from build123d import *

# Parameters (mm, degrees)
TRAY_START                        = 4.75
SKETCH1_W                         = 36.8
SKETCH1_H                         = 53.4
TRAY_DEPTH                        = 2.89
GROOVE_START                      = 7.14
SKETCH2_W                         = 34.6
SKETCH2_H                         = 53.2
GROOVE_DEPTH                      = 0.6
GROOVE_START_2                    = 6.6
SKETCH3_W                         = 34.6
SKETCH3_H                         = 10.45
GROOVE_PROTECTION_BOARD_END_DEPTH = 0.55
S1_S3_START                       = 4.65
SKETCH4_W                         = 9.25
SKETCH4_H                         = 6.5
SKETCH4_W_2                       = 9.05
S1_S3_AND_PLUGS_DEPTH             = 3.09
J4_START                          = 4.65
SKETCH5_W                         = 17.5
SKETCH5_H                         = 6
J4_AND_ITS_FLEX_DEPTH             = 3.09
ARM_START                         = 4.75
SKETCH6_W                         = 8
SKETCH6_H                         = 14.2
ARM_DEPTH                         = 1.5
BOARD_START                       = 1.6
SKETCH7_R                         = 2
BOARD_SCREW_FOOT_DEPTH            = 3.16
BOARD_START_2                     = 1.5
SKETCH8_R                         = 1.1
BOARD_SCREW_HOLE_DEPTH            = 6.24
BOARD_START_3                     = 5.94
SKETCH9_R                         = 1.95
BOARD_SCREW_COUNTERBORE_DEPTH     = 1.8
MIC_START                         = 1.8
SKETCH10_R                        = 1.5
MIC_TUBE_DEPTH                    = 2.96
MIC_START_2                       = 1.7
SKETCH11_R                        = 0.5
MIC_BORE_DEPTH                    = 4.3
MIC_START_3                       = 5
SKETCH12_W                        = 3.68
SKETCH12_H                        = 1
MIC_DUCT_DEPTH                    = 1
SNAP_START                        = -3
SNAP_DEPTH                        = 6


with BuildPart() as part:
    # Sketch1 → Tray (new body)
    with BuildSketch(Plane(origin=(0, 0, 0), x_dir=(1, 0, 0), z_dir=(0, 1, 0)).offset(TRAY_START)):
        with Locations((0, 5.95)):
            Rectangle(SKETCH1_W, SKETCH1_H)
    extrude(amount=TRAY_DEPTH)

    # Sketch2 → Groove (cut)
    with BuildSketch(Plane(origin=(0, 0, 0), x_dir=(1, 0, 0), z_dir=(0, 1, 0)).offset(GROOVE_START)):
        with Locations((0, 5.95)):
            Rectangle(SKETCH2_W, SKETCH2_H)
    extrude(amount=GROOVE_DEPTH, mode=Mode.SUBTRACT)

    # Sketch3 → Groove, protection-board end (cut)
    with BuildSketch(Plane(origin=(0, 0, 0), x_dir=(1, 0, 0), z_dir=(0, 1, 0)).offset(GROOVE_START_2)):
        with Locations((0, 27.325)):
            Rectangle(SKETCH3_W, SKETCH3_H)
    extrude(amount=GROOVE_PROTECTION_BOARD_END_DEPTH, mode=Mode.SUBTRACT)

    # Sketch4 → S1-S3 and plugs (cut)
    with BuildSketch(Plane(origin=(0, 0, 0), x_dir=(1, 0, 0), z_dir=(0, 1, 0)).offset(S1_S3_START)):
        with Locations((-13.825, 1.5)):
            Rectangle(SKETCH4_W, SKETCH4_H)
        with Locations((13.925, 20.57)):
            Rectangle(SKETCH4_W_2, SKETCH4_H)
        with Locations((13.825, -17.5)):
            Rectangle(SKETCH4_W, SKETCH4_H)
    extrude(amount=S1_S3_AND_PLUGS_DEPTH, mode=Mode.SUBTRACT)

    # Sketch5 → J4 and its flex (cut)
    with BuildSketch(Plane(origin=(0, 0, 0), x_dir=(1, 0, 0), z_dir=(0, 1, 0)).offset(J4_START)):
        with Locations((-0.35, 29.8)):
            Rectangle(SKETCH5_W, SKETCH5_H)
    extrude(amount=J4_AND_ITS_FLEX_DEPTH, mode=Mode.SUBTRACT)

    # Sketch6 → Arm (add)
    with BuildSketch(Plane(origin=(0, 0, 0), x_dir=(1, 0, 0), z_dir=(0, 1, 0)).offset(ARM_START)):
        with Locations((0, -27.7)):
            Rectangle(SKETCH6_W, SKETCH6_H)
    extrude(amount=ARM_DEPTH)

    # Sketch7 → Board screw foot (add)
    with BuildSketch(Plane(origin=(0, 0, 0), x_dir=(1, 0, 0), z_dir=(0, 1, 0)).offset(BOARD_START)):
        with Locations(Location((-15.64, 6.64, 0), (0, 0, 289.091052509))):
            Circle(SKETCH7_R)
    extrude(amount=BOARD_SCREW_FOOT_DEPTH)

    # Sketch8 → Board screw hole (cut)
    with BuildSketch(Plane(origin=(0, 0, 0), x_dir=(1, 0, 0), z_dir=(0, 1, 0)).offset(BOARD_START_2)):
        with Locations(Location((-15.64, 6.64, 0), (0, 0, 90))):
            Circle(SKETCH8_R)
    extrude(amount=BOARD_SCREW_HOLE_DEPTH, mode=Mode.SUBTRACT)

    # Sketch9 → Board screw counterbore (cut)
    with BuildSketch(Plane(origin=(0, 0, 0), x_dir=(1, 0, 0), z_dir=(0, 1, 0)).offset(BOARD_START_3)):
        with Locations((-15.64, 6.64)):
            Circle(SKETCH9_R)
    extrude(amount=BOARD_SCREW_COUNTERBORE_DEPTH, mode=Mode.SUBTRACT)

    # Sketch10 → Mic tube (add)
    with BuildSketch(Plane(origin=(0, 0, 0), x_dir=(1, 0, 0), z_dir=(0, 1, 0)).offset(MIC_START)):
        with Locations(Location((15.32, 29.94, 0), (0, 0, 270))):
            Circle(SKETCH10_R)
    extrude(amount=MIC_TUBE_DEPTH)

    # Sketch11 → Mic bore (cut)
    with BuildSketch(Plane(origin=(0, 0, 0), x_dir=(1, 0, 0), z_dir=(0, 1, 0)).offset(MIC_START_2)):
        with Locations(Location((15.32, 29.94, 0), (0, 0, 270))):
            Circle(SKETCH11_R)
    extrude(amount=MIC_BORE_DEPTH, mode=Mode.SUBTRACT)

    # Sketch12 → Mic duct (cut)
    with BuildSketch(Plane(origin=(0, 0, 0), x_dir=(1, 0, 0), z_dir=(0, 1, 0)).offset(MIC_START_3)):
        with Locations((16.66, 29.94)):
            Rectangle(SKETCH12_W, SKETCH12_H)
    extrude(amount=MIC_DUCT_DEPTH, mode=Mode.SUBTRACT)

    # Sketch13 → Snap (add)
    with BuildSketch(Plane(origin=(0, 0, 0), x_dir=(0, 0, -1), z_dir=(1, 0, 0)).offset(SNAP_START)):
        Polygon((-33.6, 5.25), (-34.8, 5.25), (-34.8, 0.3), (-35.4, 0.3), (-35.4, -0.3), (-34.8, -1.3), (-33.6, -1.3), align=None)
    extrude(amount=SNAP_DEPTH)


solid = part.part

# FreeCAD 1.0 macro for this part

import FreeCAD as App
import Part
import Sketcher

V = App.Vector


def add_polygon(sketch, points):
    """Adds a closed chain of lines whose ends are joined by coincident constraints."""
    first, n = sketch.GeometryCount, len(points)
    for a, b in zip(points, points[1:] + points[:1]):
        sketch.addGeometry(Part.LineSegment(App.Vector(*a, 0), App.Vector(*b, 0)), False)
    for i in range(n):
        sketch.addConstraint(Sketcher.Constraint("Coincident", first + i, 2, first + (i + 1) % n, 1))

doc = App.newDocument("Part")
params = doc.addObject("Spreadsheet::Sheet", "Params")
for row, (alias, value) in enumerate([
    ("sketch1_width", "36.8 mm"),
    ("sketch1_height", "53.4 mm"),
    ("pad1_length", "2.89 mm"),
    ("sketch2_width", "34.6 mm"),
    ("sketch2_height", "53.2 mm"),
    ("pocket1_length", "0.6 mm"),
    ("sketch3_width", "34.6 mm"),
    ("sketch3_height", "10.45 mm"),
    ("pocket2_length", "0.55 mm"),
    ("sketch4_height", "6.5 mm"),
    ("sketch4_width", "9.25 mm"),
    ("sketch4_width2", "9.05 mm"),
    ("pocket3_length", "3.09 mm"),
    ("sketch5_height", "6 mm"),
    ("sketch5_width", "17.5 mm"),
    ("pocket4_length", "3.09 mm"),
    ("sketch6_width", "8 mm"),
    ("sketch6_height", "14.2 mm"),
    ("pad2_length", "1.5 mm"),
    ("sketch7_diameter", "4 mm"),
    ("pad3_length", "3.16 mm"),
    ("sketch8_diameter", "2.2 mm"),
    ("pocket5_length", "6.24 mm"),
    ("sketch9_diameter", "3.9 mm"),
    ("pocket6_length", "1.8 mm"),
    ("sketch10_diameter", "3 mm"),
    ("pad4_length", "2.96 mm"),
    ("sketch11_diameter", "1 mm"),
    ("pocket7_length", "4.3 mm"),
    ("sketch12_height", "1 mm"),
    ("sketch12_width", "3.68 mm"),
    ("pocket8_length", "1 mm"),
    ("sketch13_width", "0.6 mm"),
    ("sketch13_height", "1.2 mm"),
    ("sketch13_width2", "4.95 mm"),
    ("pad5_length", "6 mm"),
], start=1):
    params.set(f"A{row}", alias)
    params.set(f"B{row}", "=" + value)
    params.setAlias(f"B{row}", alias)

body = doc.addObject("PartDesign::Body", "Body")

# Sketch on XZ plane
sketch1 = body.newObject("Sketcher::SketchObject", "Sketch")
sketch1.AttachmentSupport = (doc.getObject("XZ_Plane"), [""])
sketch1.MapMode = "FlatFace"
sketch1.AttachmentOffset = App.Placement(V(0, 0, -4.75), App.Rotation())
add_polygon(sketch1, [(-18.4, -32.65), (-18.4, 20.75), (18.4, 20.75), (18.4, -32.65)])  # lines 0-3
sketch1.addConstraint([
    Sketcher.Constraint("Vertical", 0),
    Sketcher.Constraint("Horizontal", 1),
    Sketcher.Constraint("Vertical", 2),
    Sketcher.Constraint("Horizontal", 3),
    Sketcher.Constraint("DistanceX", 1, 1, 1, 2, 36.8),
    Sketcher.Constraint("DistanceY", 0, 1, 0, 2, 53.4),
    Sketcher.Constraint("DistanceX", 0, 2, -1, 1, 18.4),
    Sketcher.Constraint("DistanceY", -1, 1, 0, 2, 20.75),
])
sketch1.setExpression("Constraints[8]", "Params.sketch1_width")
sketch1.setExpression("Constraints[9]", "Params.sketch1_height")
pad1 = body.newObject("PartDesign::Pad", "Pad")
pad1.Profile = sketch1
pad1.setExpression("Length", "Params.pad1_length")
pad1.Reversed = True

# Sketch on XZ plane
sketch2 = body.newObject("Sketcher::SketchObject", "Sketch001")
sketch2.AttachmentSupport = (doc.getObject("XZ_Plane"), [""])
sketch2.MapMode = "FlatFace"
sketch2.AttachmentOffset = App.Placement(V(0, 0, -7.14), App.Rotation())
add_polygon(sketch2, [(-17.3, -32.55), (-17.3, 20.65), (17.3, 20.65), (17.3, -32.55)])  # lines 0-3
sketch2.addConstraint([
    Sketcher.Constraint("Vertical", 0),
    Sketcher.Constraint("Horizontal", 1),
    Sketcher.Constraint("Vertical", 2),
    Sketcher.Constraint("Horizontal", 3),
    Sketcher.Constraint("DistanceX", 1, 1, 1, 2, 34.6),
    Sketcher.Constraint("DistanceY", 0, 1, 0, 2, 53.2),
    Sketcher.Constraint("DistanceX", 0, 2, -1, 1, 17.3),
    Sketcher.Constraint("DistanceY", -1, 1, 0, 2, 20.65),
])
sketch2.setExpression("Constraints[8]", "Params.sketch2_width")
sketch2.setExpression("Constraints[9]", "Params.sketch2_height")
pocket1 = body.newObject("PartDesign::Pocket", "Pocket")
pocket1.Profile = sketch2
pocket1.setExpression("Length", "Params.pocket1_length")

# Sketch on XZ plane
sketch3 = body.newObject("Sketcher::SketchObject", "Sketch002")
sketch3.AttachmentSupport = (doc.getObject("XZ_Plane"), [""])
sketch3.MapMode = "FlatFace"
sketch3.AttachmentOffset = App.Placement(V(0, 0, -6.6), App.Rotation())
add_polygon(sketch3, [(-17.3, -32.55), (-17.3, -22.1), (17.3, -22.1), (17.3, -32.55)])  # lines 0-3
sketch3.addConstraint([
    Sketcher.Constraint("Vertical", 0),
    Sketcher.Constraint("Horizontal", 1),
    Sketcher.Constraint("Vertical", 2),
    Sketcher.Constraint("Horizontal", 3),
    Sketcher.Constraint("DistanceX", 1, 1, 1, 2, 34.6),
    Sketcher.Constraint("DistanceY", 0, 1, 0, 2, 10.45),
    Sketcher.Constraint("DistanceX", 0, 2, -1, 1, 17.3),
    Sketcher.Constraint("DistanceY", 0, 2, -1, 1, 22.1),
])
sketch3.setExpression("Constraints[8]", "Params.sketch3_width")
sketch3.setExpression("Constraints[9]", "Params.sketch3_height")
pocket2 = body.newObject("PartDesign::Pocket", "Pocket001")
pocket2.Profile = sketch3
pocket2.setExpression("Length", "Params.pocket2_length")

# Sketch on XZ plane
sketch4 = body.newObject("Sketcher::SketchObject", "Sketch003")
sketch4.AttachmentSupport = (doc.getObject("XZ_Plane"), [""])
sketch4.MapMode = "FlatFace"
sketch4.AttachmentOffset = App.Placement(V(0, 0, -4.65), App.Rotation())
add_polygon(sketch4, [(-18.45, -4.75), (-18.45, 1.75), (-9.2, 1.75), (-9.2, -4.75)])  # lines 0-3
add_polygon(sketch4, [(9.4, -23.82), (9.4, -17.32), (18.45, -17.32), (18.45, -23.82)])  # lines 4-7
add_polygon(sketch4, [(9.2, 14.25), (9.2, 20.75), (18.45, 20.75), (18.45, 14.25)])  # lines 8-11
sketch4.addConstraint([
    Sketcher.Constraint("Vertical", 0),
    Sketcher.Constraint("Horizontal", 1),
    Sketcher.Constraint("Vertical", 2),
    Sketcher.Constraint("Horizontal", 3),
    Sketcher.Constraint("Vertical", 4),
    Sketcher.Constraint("Horizontal", 5),
    Sketcher.Constraint("Vertical", 6),
    Sketcher.Constraint("Horizontal", 7),
    Sketcher.Constraint("Vertical", 8),
    Sketcher.Constraint("Horizontal", 9),
    Sketcher.Constraint("Vertical", 10),
    Sketcher.Constraint("Horizontal", 11),
    Sketcher.Constraint("Vertical", 6, 2, 9, 2),
    Sketcher.Constraint("Equal", 3, 9),
    Sketcher.Constraint("Equal", 2, 4),
    Sketcher.Constraint("Equal", 6, 8),
    Sketcher.Constraint("DistanceY", 0, 1, 0, 2, 6.5),
    Sketcher.Constraint("DistanceY", 1, 2, 8, 2, 19.0),
    Sketcher.Constraint("DistanceX", 1, 1, 1, 2, 9.25),
    Sketcher.Constraint("DistanceX", 5, 1, 5, 2, 9.05),
    Sketcher.Constraint("DistanceX", 1, 2, -1, 1, 9.2),
    Sketcher.Constraint("DistanceX", -1, 1, 4, 2, 9.4),
    Sketcher.Constraint("DistanceY", -1, 1, 0, 2, 1.75),
    Sketcher.Constraint("DistanceY", 4, 2, -1, 1, 17.32),
])
sketch4.setExpression("Constraints[28]", "Params.sketch4_height")
sketch4.setExpression("Constraints[30]", "Params.sketch4_width")
sketch4.setExpression("Constraints[31]", "Params.sketch4_width2")
pocket3 = body.newObject("PartDesign::Pocket", "Pocket002")
pocket3.Profile = sketch4
pocket3.setExpression("Length", "Params.pocket3_length")

# Sketch on XZ plane
sketch5 = body.newObject("Sketcher::SketchObject", "Sketch004")
sketch5.AttachmentSupport = (doc.getObject("XZ_Plane"), [""])
sketch5.MapMode = "FlatFace"
sketch5.AttachmentOffset = App.Placement(V(0, 0, -4.65), App.Rotation())
add_polygon(sketch5, [(-9.1, -32.8), (-9.1, -26.8), (8.4, -26.8), (8.4, -32.8)])  # lines 0-3
sketch5.addConstraint([
    Sketcher.Constraint("Vertical", 0),
    Sketcher.Constraint("Horizontal", 1),
    Sketcher.Constraint("Vertical", 2),
    Sketcher.Constraint("Horizontal", 3),
    Sketcher.Constraint("DistanceY", 0, 1, 0, 2, 6.0),
    Sketcher.Constraint("DistanceX", 1, 1, 1, 2, 17.5),
    Sketcher.Constraint("DistanceX", 0, 2, -1, 1, 9.1),
    Sketcher.Constraint("DistanceY", 0, 2, -1, 1, 26.8),
])
sketch5.setExpression("Constraints[8]", "Params.sketch5_height")
sketch5.setExpression("Constraints[9]", "Params.sketch5_width")
pocket4 = body.newObject("PartDesign::Pocket", "Pocket003")
pocket4.Profile = sketch5
pocket4.setExpression("Length", "Params.pocket4_length")

# Sketch on XZ plane
sketch6 = body.newObject("Sketcher::SketchObject", "Sketch005")
sketch6.AttachmentSupport = (doc.getObject("XZ_Plane"), [""])
sketch6.MapMode = "FlatFace"
sketch6.AttachmentOffset = App.Placement(V(0, 0, -4.75), App.Rotation())
add_polygon(sketch6, [(-4, 20.6), (-4, 34.8), (4, 34.8), (4, 20.6)])  # lines 0-3
sketch6.addConstraint([
    Sketcher.Constraint("Vertical", 0),
    Sketcher.Constraint("Horizontal", 1),
    Sketcher.Constraint("Vertical", 2),
    Sketcher.Constraint("Horizontal", 3),
    Sketcher.Constraint("DistanceX", 1, 1, 1, 2, 8.0),
    Sketcher.Constraint("DistanceY", 0, 1, 0, 2, 14.2),
    Sketcher.Constraint("DistanceX", 0, 2, -1, 1, 4.0),
    Sketcher.Constraint("DistanceY", -1, 1, 0, 2, 34.8),
])
sketch6.setExpression("Constraints[8]", "Params.sketch6_width")
sketch6.setExpression("Constraints[9]", "Params.sketch6_height")
pad2 = body.newObject("PartDesign::Pad", "Pad001")
pad2.Profile = sketch6
pad2.setExpression("Length", "Params.pad2_length")
pad2.Reversed = True

# Sketch on XZ plane
sketch7 = body.newObject("Sketcher::SketchObject", "Sketch006")
sketch7.AttachmentSupport = (doc.getObject("XZ_Plane"), [""])
sketch7.MapMode = "FlatFace"
sketch7.AttachmentOffset = App.Placement(V(0, 0, -1.6), App.Rotation())
sketch7.addGeometry(Part.Circle(V(-15.64, -6.64, 0), V(0, 0, 1), 2), False)
sketch7.addConstraint([
    Sketcher.Constraint("Diameter", 0, 4.0),
    Sketcher.Constraint("DistanceX", 0, 3, -1, 1, 15.64),
    Sketcher.Constraint("DistanceY", 0, 3, -1, 1, 6.64),
])
sketch7.setExpression("Constraints[0]", "Params.sketch7_diameter")
pad3 = body.newObject("PartDesign::Pad", "Pad002")
pad3.Profile = sketch7
pad3.setExpression("Length", "Params.pad3_length")
pad3.Reversed = True

# Sketch on XZ plane
sketch8 = body.newObject("Sketcher::SketchObject", "Sketch007")
sketch8.AttachmentSupport = (doc.getObject("XZ_Plane"), [""])
sketch8.MapMode = "FlatFace"
sketch8.AttachmentOffset = App.Placement(V(0, 0, -1.5), App.Rotation())
sketch8.addGeometry(Part.Circle(V(-15.64, -6.64, 0), V(0, 0, 1), 1.1), False)
sketch8.addConstraint([
    Sketcher.Constraint("Diameter", 0, 2.2),
    Sketcher.Constraint("DistanceX", 0, 3, -1, 1, 15.64),
    Sketcher.Constraint("DistanceY", 0, 3, -1, 1, 6.64),
])
sketch8.setExpression("Constraints[0]", "Params.sketch8_diameter")
pocket5 = body.newObject("PartDesign::Pocket", "Pocket004")
pocket5.Profile = sketch8
pocket5.setExpression("Length", "Params.pocket5_length")

# Sketch on XZ plane
sketch9 = body.newObject("Sketcher::SketchObject", "Sketch008")
sketch9.AttachmentSupport = (doc.getObject("XZ_Plane"), [""])
sketch9.MapMode = "FlatFace"
sketch9.AttachmentOffset = App.Placement(V(0, 0, -5.94), App.Rotation())
sketch9.addGeometry(Part.Circle(V(-15.64, -6.64, 0), V(0, 0, 1), 1.95), False)
sketch9.addConstraint([
    Sketcher.Constraint("Diameter", 0, 3.9),
    Sketcher.Constraint("DistanceX", 0, 3, -1, 1, 15.64),
    Sketcher.Constraint("DistanceY", 0, 3, -1, 1, 6.64),
])
sketch9.setExpression("Constraints[0]", "Params.sketch9_diameter")
pocket6 = body.newObject("PartDesign::Pocket", "Pocket005")
pocket6.Profile = sketch9
pocket6.setExpression("Length", "Params.pocket6_length")

# Sketch on XZ plane
sketch10 = body.newObject("Sketcher::SketchObject", "Sketch009")
sketch10.AttachmentSupport = (doc.getObject("XZ_Plane"), [""])
sketch10.MapMode = "FlatFace"
sketch10.AttachmentOffset = App.Placement(V(0, 0, -1.8), App.Rotation())
sketch10.addGeometry(Part.Circle(V(15.32, -29.94, 0), V(0, 0, 1), 1.5), False)
sketch10.addConstraint([
    Sketcher.Constraint("Diameter", 0, 3.0),
    Sketcher.Constraint("DistanceX", -1, 1, 0, 3, 15.32),
    Sketcher.Constraint("DistanceY", 0, 3, -1, 1, 29.94),
])
sketch10.setExpression("Constraints[0]", "Params.sketch10_diameter")
pad4 = body.newObject("PartDesign::Pad", "Pad003")
pad4.Profile = sketch10
pad4.setExpression("Length", "Params.pad4_length")
pad4.Reversed = True

# Sketch on XZ plane
sketch11 = body.newObject("Sketcher::SketchObject", "Sketch010")
sketch11.AttachmentSupport = (doc.getObject("XZ_Plane"), [""])
sketch11.MapMode = "FlatFace"
sketch11.AttachmentOffset = App.Placement(V(0, 0, -1.7), App.Rotation())
sketch11.addGeometry(Part.Circle(V(15.32, -29.94, 0), V(0, 0, 1), 0.5), False)
sketch11.addConstraint([
    Sketcher.Constraint("Diameter", 0, 1.0),
    Sketcher.Constraint("DistanceX", -1, 1, 0, 3, 15.32),
    Sketcher.Constraint("DistanceY", 0, 3, -1, 1, 29.94),
])
sketch11.setExpression("Constraints[0]", "Params.sketch11_diameter")
pocket7 = body.newObject("PartDesign::Pocket", "Pocket006")
pocket7.Profile = sketch11
pocket7.setExpression("Length", "Params.pocket7_length")

# Sketch on XZ plane
sketch12 = body.newObject("Sketcher::SketchObject", "Sketch011")
sketch12.AttachmentSupport = (doc.getObject("XZ_Plane"), [""])
sketch12.MapMode = "FlatFace"
sketch12.AttachmentOffset = App.Placement(V(0, 0, -5), App.Rotation())
add_polygon(sketch12, [(14.82, -30.44), (14.82, -29.44), (18.5, -29.44), (18.5, -30.44)])  # lines 0-3
sketch12.addConstraint([
    Sketcher.Constraint("Vertical", 0),
    Sketcher.Constraint("Horizontal", 1),
    Sketcher.Constraint("Vertical", 2),
    Sketcher.Constraint("Horizontal", 3),
    Sketcher.Constraint("DistanceY", 0, 1, 0, 2, 1.0),
    Sketcher.Constraint("DistanceX", 1, 1, 1, 2, 3.68),
    Sketcher.Constraint("DistanceX", -1, 1, 1, 2, 18.5),
    Sketcher.Constraint("DistanceY", 0, 2, -1, 1, 29.44),
])
sketch12.setExpression("Constraints[8]", "Params.sketch12_height")
sketch12.setExpression("Constraints[9]", "Params.sketch12_width")
pocket8 = body.newObject("PartDesign::Pocket", "Pocket007")
pocket8.Profile = sketch12
pocket8.setExpression("Length", "Params.pocket8_length")

# Sketch on YZ plane
sketch13 = body.newObject("Sketcher::SketchObject", "Sketch012")
sketch13.AttachmentSupport = (doc.getObject("YZ_Plane"), [""])
sketch13.MapMode = "FlatFace"
sketch13.AttachmentOffset = App.Placement(V(0, 0, -3), App.Rotation())
add_polygon(sketch13, [(5.25, 33.6), (5.25, 34.8), (0.3, 34.8), (0.3, 35.4), (-0.3, 35.4), (-1.3, 34.8), (-1.3, 33.6)])  # lines 0-6
sketch13.addConstraint([
    Sketcher.Constraint("Vertical", 0),
    Sketcher.Constraint("Horizontal", 1),
    Sketcher.Constraint("Vertical", 2),
    Sketcher.Constraint("Horizontal", 3),
    Sketcher.Constraint("Vertical", 5),
    Sketcher.Constraint("Horizontal", 6),
    Sketcher.Constraint("Horizontal", 1, 2, 4, 2),
    Sketcher.Constraint("Equal", 3, 2),
    Sketcher.Constraint("DistanceX", 3, 2, 3, 1, 0.6),
    Sketcher.Constraint("DistanceY", 0, 1, 0, 2, 1.2),
    Sketcher.Constraint("DistanceX", 4, 2, 3, 2, 1.0),
    Sketcher.Constraint("DistanceX", 1, 2, 1, 1, 4.95),
    Sketcher.Constraint("DistanceY", -1, 1, 0, 2, 34.8),
    Sketcher.Constraint("DistanceX", -1, 1, 1, 2, 0.3),
])
sketch13.setExpression("Constraints[15]", "Params.sketch13_width")
sketch13.setExpression("Constraints[16]", "Params.sketch13_height")
sketch13.setExpression("Constraints[18]", "Params.sketch13_width2")
pad5 = body.newObject("PartDesign::Pad", "Pad004")
pad5.Profile = sketch13
pad5.setExpression("Length", "Params.pad5_length")

doc.recompute()
